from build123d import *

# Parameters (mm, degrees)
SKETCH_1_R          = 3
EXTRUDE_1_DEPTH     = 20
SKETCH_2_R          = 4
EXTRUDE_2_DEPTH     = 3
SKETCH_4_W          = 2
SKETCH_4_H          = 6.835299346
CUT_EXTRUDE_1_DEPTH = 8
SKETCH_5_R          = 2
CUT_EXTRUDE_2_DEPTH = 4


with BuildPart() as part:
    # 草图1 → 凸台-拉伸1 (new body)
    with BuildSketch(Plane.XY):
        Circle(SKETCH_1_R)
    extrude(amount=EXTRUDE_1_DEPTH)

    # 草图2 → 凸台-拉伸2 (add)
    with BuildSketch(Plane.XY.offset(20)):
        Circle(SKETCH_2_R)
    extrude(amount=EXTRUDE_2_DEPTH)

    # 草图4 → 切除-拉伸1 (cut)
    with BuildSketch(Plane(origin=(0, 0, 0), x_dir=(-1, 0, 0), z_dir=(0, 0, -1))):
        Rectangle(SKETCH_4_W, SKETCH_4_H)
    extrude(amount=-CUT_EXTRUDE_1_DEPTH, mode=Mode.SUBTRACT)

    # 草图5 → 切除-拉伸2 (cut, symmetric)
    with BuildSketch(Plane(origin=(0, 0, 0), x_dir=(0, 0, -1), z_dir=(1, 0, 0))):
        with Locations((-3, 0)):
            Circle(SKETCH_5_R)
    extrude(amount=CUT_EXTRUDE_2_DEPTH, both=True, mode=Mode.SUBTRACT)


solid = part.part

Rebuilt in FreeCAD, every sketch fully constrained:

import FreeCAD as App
import Part
import Sketcher

V = App.Vector
Q = App.Units.Quantity


def add_polygon(sketch, points):
    """Adds a closed chain of lines whose ends are joined by coincident constraints."""
    first, n = sketch.GeometryCount, len(points)
    for a, b in zip(points, points[1:] + points[:1]):
        sketch.addGeometry(Part.LineSegment(App.Vector(*a, 0), App.Vector(*b, 0)), False)
    for i in range(n):
        sketch.addConstraint(Sketcher.Constraint("Coincident", first + i, 2, first + (i + 1) % n, 1))

doc = App.newDocument("Part")
params = doc.addObject("Spreadsheet::Sheet", "Params")
for row, (alias, value) in enumerate([
    ("sketch1_diameter", "6 mm"),
    ("pad1_length", "20 mm"),
    ("sketch2_diameter", "8 mm"),
    ("pad2_length", "3 mm"),
    ("sketch3_width", "2 mm"),
    ("pocket1_length", "8 mm"),
    ("sketch4_diameter", "4 mm"),
    ("pocket2_length", "8 mm"),
], start=1):
    params.set(f"A{row}", alias)
    params.set(f"B{row}", "=" + value)
    params.setAlias(f"B{row}", alias)

body = doc.addObject("PartDesign::Body", "Body")

# Sketch on XY plane
sketch1 = body.newObject("Sketcher::SketchObject", "Sketch")
sketch1.AttachmentSupport = (doc.getObject("XY_Plane"), [""])
sketch1.MapMode = "FlatFace"
sketch1.addGeometry(Part.Circle(V(0, 0, 0), V(0, 0, 1), 3), False)
sketch1.addConstraint(Sketcher.Constraint("Coincident", 0, 3, -1, 1))
sketch1.addConstraint(Sketcher.Constraint("Diameter", 0, Q("6 mm")))
sketch1.setExpression("Constraints[1]", "Params.sketch1_diameter")
pad1 = body.newObject("PartDesign::Pad", "Pad")
pad1.Profile = sketch1
pad1.setExpression("Length", "Params.pad1_length")

# Sketch on XY plane
sketch2 = body.newObject("Sketcher::SketchObject", "Sketch001")
sketch2.AttachmentSupport = (doc.getObject("XY_Plane"), [""])
sketch2.MapMode = "FlatFace"
sketch2.AttachmentOffset = App.Placement(V(0, 0, 20), App.Rotation())
sketch2.addGeometry(Part.Circle(V(0, 0, 0), V(0, 0, 1), 4), False)
sketch2.addConstraint(Sketcher.Constraint("Coincident", 0, 3, -1, 1))
sketch2.addConstraint(Sketcher.Constraint("Diameter", 0, Q("8 mm")))
sketch2.setExpression("Constraints[1]", "Params.sketch2_diameter")
pad2 = body.newObject("PartDesign::Pad", "Pad001")
pad2.Profile = sketch2
pad2.setExpression("Length", "Params.pad2_length")

# Sketch on XY plane
sketch3 = body.newObject("Sketcher::SketchObject", "Sketch002")
sketch3.AttachmentSupport = (doc.getObject("XY_Plane"), [""])
sketch3.MapMode = "FlatFace"
add_polygon(sketch3, [(1, 3.4), (1, -3.4), (-1, -3.4), (-1, 3.4)])  # lines 0-3
sketch3.addConstraint(Sketcher.Constraint("Vertical", 0))
sketch3.addConstraint(Sketcher.Constraint("Horizontal", 1))
sketch3.addConstraint(Sketcher.Constraint("Vertical", 2))
sketch3.addConstraint(Sketcher.Constraint("Horizontal", 3))
sketch3.addConstraint(Sketcher.Constraint("Symmetric", 0, 2, 2, 2, -1, 1))
sketch3.addConstraint(Sketcher.Constraint("DistanceX", 1, 2, 1, 1, Q("2 mm")))
sketch3.addConstraint(Sketcher.Constraint("DistanceY", 0, 2, 0, 1, Q("6.835299 mm")))
sketch3.setExpression("Constraints[9]", "Params.sketch3_width")
pocket1 = body.newObject("PartDesign::Pocket", "Pocket")
pocket1.Profile = sketch3
pocket1.setExpression("Length", "Params.pocket1_length")
pocket1.Reversed = True

# Sketch on YZ plane
sketch4 = body.newObject("Sketcher::SketchObject", "Sketch003")
sketch4.AttachmentSupport = (doc.getObject("YZ_Plane"), [""])
sketch4.MapMode = "FlatFace"
sketch4.addGeometry(Part.Circle(V(0, 3, 0), V(0, 0, 1), 2), False)
sketch4.addConstraint(Sketcher.Constraint("PointOnObject", 0, 3, -2))
sketch4.addConstraint(Sketcher.Constraint("Diameter", 0, Q("4 mm")))
sketch4.addConstraint(Sketcher.Constraint("DistanceY", -1, 1, 0, 3, Q("3 mm")))
sketch4.setExpression("Constraints[1]", "Params.sketch4_diameter")
pocket2 = body.newObject("PartDesign::Pocket", "Pocket001")
pocket2.Profile = sketch4
pocket2.setExpression("Length", "Params.pocket2_length")
pocket2.Midplane = True

doc.recompute()
